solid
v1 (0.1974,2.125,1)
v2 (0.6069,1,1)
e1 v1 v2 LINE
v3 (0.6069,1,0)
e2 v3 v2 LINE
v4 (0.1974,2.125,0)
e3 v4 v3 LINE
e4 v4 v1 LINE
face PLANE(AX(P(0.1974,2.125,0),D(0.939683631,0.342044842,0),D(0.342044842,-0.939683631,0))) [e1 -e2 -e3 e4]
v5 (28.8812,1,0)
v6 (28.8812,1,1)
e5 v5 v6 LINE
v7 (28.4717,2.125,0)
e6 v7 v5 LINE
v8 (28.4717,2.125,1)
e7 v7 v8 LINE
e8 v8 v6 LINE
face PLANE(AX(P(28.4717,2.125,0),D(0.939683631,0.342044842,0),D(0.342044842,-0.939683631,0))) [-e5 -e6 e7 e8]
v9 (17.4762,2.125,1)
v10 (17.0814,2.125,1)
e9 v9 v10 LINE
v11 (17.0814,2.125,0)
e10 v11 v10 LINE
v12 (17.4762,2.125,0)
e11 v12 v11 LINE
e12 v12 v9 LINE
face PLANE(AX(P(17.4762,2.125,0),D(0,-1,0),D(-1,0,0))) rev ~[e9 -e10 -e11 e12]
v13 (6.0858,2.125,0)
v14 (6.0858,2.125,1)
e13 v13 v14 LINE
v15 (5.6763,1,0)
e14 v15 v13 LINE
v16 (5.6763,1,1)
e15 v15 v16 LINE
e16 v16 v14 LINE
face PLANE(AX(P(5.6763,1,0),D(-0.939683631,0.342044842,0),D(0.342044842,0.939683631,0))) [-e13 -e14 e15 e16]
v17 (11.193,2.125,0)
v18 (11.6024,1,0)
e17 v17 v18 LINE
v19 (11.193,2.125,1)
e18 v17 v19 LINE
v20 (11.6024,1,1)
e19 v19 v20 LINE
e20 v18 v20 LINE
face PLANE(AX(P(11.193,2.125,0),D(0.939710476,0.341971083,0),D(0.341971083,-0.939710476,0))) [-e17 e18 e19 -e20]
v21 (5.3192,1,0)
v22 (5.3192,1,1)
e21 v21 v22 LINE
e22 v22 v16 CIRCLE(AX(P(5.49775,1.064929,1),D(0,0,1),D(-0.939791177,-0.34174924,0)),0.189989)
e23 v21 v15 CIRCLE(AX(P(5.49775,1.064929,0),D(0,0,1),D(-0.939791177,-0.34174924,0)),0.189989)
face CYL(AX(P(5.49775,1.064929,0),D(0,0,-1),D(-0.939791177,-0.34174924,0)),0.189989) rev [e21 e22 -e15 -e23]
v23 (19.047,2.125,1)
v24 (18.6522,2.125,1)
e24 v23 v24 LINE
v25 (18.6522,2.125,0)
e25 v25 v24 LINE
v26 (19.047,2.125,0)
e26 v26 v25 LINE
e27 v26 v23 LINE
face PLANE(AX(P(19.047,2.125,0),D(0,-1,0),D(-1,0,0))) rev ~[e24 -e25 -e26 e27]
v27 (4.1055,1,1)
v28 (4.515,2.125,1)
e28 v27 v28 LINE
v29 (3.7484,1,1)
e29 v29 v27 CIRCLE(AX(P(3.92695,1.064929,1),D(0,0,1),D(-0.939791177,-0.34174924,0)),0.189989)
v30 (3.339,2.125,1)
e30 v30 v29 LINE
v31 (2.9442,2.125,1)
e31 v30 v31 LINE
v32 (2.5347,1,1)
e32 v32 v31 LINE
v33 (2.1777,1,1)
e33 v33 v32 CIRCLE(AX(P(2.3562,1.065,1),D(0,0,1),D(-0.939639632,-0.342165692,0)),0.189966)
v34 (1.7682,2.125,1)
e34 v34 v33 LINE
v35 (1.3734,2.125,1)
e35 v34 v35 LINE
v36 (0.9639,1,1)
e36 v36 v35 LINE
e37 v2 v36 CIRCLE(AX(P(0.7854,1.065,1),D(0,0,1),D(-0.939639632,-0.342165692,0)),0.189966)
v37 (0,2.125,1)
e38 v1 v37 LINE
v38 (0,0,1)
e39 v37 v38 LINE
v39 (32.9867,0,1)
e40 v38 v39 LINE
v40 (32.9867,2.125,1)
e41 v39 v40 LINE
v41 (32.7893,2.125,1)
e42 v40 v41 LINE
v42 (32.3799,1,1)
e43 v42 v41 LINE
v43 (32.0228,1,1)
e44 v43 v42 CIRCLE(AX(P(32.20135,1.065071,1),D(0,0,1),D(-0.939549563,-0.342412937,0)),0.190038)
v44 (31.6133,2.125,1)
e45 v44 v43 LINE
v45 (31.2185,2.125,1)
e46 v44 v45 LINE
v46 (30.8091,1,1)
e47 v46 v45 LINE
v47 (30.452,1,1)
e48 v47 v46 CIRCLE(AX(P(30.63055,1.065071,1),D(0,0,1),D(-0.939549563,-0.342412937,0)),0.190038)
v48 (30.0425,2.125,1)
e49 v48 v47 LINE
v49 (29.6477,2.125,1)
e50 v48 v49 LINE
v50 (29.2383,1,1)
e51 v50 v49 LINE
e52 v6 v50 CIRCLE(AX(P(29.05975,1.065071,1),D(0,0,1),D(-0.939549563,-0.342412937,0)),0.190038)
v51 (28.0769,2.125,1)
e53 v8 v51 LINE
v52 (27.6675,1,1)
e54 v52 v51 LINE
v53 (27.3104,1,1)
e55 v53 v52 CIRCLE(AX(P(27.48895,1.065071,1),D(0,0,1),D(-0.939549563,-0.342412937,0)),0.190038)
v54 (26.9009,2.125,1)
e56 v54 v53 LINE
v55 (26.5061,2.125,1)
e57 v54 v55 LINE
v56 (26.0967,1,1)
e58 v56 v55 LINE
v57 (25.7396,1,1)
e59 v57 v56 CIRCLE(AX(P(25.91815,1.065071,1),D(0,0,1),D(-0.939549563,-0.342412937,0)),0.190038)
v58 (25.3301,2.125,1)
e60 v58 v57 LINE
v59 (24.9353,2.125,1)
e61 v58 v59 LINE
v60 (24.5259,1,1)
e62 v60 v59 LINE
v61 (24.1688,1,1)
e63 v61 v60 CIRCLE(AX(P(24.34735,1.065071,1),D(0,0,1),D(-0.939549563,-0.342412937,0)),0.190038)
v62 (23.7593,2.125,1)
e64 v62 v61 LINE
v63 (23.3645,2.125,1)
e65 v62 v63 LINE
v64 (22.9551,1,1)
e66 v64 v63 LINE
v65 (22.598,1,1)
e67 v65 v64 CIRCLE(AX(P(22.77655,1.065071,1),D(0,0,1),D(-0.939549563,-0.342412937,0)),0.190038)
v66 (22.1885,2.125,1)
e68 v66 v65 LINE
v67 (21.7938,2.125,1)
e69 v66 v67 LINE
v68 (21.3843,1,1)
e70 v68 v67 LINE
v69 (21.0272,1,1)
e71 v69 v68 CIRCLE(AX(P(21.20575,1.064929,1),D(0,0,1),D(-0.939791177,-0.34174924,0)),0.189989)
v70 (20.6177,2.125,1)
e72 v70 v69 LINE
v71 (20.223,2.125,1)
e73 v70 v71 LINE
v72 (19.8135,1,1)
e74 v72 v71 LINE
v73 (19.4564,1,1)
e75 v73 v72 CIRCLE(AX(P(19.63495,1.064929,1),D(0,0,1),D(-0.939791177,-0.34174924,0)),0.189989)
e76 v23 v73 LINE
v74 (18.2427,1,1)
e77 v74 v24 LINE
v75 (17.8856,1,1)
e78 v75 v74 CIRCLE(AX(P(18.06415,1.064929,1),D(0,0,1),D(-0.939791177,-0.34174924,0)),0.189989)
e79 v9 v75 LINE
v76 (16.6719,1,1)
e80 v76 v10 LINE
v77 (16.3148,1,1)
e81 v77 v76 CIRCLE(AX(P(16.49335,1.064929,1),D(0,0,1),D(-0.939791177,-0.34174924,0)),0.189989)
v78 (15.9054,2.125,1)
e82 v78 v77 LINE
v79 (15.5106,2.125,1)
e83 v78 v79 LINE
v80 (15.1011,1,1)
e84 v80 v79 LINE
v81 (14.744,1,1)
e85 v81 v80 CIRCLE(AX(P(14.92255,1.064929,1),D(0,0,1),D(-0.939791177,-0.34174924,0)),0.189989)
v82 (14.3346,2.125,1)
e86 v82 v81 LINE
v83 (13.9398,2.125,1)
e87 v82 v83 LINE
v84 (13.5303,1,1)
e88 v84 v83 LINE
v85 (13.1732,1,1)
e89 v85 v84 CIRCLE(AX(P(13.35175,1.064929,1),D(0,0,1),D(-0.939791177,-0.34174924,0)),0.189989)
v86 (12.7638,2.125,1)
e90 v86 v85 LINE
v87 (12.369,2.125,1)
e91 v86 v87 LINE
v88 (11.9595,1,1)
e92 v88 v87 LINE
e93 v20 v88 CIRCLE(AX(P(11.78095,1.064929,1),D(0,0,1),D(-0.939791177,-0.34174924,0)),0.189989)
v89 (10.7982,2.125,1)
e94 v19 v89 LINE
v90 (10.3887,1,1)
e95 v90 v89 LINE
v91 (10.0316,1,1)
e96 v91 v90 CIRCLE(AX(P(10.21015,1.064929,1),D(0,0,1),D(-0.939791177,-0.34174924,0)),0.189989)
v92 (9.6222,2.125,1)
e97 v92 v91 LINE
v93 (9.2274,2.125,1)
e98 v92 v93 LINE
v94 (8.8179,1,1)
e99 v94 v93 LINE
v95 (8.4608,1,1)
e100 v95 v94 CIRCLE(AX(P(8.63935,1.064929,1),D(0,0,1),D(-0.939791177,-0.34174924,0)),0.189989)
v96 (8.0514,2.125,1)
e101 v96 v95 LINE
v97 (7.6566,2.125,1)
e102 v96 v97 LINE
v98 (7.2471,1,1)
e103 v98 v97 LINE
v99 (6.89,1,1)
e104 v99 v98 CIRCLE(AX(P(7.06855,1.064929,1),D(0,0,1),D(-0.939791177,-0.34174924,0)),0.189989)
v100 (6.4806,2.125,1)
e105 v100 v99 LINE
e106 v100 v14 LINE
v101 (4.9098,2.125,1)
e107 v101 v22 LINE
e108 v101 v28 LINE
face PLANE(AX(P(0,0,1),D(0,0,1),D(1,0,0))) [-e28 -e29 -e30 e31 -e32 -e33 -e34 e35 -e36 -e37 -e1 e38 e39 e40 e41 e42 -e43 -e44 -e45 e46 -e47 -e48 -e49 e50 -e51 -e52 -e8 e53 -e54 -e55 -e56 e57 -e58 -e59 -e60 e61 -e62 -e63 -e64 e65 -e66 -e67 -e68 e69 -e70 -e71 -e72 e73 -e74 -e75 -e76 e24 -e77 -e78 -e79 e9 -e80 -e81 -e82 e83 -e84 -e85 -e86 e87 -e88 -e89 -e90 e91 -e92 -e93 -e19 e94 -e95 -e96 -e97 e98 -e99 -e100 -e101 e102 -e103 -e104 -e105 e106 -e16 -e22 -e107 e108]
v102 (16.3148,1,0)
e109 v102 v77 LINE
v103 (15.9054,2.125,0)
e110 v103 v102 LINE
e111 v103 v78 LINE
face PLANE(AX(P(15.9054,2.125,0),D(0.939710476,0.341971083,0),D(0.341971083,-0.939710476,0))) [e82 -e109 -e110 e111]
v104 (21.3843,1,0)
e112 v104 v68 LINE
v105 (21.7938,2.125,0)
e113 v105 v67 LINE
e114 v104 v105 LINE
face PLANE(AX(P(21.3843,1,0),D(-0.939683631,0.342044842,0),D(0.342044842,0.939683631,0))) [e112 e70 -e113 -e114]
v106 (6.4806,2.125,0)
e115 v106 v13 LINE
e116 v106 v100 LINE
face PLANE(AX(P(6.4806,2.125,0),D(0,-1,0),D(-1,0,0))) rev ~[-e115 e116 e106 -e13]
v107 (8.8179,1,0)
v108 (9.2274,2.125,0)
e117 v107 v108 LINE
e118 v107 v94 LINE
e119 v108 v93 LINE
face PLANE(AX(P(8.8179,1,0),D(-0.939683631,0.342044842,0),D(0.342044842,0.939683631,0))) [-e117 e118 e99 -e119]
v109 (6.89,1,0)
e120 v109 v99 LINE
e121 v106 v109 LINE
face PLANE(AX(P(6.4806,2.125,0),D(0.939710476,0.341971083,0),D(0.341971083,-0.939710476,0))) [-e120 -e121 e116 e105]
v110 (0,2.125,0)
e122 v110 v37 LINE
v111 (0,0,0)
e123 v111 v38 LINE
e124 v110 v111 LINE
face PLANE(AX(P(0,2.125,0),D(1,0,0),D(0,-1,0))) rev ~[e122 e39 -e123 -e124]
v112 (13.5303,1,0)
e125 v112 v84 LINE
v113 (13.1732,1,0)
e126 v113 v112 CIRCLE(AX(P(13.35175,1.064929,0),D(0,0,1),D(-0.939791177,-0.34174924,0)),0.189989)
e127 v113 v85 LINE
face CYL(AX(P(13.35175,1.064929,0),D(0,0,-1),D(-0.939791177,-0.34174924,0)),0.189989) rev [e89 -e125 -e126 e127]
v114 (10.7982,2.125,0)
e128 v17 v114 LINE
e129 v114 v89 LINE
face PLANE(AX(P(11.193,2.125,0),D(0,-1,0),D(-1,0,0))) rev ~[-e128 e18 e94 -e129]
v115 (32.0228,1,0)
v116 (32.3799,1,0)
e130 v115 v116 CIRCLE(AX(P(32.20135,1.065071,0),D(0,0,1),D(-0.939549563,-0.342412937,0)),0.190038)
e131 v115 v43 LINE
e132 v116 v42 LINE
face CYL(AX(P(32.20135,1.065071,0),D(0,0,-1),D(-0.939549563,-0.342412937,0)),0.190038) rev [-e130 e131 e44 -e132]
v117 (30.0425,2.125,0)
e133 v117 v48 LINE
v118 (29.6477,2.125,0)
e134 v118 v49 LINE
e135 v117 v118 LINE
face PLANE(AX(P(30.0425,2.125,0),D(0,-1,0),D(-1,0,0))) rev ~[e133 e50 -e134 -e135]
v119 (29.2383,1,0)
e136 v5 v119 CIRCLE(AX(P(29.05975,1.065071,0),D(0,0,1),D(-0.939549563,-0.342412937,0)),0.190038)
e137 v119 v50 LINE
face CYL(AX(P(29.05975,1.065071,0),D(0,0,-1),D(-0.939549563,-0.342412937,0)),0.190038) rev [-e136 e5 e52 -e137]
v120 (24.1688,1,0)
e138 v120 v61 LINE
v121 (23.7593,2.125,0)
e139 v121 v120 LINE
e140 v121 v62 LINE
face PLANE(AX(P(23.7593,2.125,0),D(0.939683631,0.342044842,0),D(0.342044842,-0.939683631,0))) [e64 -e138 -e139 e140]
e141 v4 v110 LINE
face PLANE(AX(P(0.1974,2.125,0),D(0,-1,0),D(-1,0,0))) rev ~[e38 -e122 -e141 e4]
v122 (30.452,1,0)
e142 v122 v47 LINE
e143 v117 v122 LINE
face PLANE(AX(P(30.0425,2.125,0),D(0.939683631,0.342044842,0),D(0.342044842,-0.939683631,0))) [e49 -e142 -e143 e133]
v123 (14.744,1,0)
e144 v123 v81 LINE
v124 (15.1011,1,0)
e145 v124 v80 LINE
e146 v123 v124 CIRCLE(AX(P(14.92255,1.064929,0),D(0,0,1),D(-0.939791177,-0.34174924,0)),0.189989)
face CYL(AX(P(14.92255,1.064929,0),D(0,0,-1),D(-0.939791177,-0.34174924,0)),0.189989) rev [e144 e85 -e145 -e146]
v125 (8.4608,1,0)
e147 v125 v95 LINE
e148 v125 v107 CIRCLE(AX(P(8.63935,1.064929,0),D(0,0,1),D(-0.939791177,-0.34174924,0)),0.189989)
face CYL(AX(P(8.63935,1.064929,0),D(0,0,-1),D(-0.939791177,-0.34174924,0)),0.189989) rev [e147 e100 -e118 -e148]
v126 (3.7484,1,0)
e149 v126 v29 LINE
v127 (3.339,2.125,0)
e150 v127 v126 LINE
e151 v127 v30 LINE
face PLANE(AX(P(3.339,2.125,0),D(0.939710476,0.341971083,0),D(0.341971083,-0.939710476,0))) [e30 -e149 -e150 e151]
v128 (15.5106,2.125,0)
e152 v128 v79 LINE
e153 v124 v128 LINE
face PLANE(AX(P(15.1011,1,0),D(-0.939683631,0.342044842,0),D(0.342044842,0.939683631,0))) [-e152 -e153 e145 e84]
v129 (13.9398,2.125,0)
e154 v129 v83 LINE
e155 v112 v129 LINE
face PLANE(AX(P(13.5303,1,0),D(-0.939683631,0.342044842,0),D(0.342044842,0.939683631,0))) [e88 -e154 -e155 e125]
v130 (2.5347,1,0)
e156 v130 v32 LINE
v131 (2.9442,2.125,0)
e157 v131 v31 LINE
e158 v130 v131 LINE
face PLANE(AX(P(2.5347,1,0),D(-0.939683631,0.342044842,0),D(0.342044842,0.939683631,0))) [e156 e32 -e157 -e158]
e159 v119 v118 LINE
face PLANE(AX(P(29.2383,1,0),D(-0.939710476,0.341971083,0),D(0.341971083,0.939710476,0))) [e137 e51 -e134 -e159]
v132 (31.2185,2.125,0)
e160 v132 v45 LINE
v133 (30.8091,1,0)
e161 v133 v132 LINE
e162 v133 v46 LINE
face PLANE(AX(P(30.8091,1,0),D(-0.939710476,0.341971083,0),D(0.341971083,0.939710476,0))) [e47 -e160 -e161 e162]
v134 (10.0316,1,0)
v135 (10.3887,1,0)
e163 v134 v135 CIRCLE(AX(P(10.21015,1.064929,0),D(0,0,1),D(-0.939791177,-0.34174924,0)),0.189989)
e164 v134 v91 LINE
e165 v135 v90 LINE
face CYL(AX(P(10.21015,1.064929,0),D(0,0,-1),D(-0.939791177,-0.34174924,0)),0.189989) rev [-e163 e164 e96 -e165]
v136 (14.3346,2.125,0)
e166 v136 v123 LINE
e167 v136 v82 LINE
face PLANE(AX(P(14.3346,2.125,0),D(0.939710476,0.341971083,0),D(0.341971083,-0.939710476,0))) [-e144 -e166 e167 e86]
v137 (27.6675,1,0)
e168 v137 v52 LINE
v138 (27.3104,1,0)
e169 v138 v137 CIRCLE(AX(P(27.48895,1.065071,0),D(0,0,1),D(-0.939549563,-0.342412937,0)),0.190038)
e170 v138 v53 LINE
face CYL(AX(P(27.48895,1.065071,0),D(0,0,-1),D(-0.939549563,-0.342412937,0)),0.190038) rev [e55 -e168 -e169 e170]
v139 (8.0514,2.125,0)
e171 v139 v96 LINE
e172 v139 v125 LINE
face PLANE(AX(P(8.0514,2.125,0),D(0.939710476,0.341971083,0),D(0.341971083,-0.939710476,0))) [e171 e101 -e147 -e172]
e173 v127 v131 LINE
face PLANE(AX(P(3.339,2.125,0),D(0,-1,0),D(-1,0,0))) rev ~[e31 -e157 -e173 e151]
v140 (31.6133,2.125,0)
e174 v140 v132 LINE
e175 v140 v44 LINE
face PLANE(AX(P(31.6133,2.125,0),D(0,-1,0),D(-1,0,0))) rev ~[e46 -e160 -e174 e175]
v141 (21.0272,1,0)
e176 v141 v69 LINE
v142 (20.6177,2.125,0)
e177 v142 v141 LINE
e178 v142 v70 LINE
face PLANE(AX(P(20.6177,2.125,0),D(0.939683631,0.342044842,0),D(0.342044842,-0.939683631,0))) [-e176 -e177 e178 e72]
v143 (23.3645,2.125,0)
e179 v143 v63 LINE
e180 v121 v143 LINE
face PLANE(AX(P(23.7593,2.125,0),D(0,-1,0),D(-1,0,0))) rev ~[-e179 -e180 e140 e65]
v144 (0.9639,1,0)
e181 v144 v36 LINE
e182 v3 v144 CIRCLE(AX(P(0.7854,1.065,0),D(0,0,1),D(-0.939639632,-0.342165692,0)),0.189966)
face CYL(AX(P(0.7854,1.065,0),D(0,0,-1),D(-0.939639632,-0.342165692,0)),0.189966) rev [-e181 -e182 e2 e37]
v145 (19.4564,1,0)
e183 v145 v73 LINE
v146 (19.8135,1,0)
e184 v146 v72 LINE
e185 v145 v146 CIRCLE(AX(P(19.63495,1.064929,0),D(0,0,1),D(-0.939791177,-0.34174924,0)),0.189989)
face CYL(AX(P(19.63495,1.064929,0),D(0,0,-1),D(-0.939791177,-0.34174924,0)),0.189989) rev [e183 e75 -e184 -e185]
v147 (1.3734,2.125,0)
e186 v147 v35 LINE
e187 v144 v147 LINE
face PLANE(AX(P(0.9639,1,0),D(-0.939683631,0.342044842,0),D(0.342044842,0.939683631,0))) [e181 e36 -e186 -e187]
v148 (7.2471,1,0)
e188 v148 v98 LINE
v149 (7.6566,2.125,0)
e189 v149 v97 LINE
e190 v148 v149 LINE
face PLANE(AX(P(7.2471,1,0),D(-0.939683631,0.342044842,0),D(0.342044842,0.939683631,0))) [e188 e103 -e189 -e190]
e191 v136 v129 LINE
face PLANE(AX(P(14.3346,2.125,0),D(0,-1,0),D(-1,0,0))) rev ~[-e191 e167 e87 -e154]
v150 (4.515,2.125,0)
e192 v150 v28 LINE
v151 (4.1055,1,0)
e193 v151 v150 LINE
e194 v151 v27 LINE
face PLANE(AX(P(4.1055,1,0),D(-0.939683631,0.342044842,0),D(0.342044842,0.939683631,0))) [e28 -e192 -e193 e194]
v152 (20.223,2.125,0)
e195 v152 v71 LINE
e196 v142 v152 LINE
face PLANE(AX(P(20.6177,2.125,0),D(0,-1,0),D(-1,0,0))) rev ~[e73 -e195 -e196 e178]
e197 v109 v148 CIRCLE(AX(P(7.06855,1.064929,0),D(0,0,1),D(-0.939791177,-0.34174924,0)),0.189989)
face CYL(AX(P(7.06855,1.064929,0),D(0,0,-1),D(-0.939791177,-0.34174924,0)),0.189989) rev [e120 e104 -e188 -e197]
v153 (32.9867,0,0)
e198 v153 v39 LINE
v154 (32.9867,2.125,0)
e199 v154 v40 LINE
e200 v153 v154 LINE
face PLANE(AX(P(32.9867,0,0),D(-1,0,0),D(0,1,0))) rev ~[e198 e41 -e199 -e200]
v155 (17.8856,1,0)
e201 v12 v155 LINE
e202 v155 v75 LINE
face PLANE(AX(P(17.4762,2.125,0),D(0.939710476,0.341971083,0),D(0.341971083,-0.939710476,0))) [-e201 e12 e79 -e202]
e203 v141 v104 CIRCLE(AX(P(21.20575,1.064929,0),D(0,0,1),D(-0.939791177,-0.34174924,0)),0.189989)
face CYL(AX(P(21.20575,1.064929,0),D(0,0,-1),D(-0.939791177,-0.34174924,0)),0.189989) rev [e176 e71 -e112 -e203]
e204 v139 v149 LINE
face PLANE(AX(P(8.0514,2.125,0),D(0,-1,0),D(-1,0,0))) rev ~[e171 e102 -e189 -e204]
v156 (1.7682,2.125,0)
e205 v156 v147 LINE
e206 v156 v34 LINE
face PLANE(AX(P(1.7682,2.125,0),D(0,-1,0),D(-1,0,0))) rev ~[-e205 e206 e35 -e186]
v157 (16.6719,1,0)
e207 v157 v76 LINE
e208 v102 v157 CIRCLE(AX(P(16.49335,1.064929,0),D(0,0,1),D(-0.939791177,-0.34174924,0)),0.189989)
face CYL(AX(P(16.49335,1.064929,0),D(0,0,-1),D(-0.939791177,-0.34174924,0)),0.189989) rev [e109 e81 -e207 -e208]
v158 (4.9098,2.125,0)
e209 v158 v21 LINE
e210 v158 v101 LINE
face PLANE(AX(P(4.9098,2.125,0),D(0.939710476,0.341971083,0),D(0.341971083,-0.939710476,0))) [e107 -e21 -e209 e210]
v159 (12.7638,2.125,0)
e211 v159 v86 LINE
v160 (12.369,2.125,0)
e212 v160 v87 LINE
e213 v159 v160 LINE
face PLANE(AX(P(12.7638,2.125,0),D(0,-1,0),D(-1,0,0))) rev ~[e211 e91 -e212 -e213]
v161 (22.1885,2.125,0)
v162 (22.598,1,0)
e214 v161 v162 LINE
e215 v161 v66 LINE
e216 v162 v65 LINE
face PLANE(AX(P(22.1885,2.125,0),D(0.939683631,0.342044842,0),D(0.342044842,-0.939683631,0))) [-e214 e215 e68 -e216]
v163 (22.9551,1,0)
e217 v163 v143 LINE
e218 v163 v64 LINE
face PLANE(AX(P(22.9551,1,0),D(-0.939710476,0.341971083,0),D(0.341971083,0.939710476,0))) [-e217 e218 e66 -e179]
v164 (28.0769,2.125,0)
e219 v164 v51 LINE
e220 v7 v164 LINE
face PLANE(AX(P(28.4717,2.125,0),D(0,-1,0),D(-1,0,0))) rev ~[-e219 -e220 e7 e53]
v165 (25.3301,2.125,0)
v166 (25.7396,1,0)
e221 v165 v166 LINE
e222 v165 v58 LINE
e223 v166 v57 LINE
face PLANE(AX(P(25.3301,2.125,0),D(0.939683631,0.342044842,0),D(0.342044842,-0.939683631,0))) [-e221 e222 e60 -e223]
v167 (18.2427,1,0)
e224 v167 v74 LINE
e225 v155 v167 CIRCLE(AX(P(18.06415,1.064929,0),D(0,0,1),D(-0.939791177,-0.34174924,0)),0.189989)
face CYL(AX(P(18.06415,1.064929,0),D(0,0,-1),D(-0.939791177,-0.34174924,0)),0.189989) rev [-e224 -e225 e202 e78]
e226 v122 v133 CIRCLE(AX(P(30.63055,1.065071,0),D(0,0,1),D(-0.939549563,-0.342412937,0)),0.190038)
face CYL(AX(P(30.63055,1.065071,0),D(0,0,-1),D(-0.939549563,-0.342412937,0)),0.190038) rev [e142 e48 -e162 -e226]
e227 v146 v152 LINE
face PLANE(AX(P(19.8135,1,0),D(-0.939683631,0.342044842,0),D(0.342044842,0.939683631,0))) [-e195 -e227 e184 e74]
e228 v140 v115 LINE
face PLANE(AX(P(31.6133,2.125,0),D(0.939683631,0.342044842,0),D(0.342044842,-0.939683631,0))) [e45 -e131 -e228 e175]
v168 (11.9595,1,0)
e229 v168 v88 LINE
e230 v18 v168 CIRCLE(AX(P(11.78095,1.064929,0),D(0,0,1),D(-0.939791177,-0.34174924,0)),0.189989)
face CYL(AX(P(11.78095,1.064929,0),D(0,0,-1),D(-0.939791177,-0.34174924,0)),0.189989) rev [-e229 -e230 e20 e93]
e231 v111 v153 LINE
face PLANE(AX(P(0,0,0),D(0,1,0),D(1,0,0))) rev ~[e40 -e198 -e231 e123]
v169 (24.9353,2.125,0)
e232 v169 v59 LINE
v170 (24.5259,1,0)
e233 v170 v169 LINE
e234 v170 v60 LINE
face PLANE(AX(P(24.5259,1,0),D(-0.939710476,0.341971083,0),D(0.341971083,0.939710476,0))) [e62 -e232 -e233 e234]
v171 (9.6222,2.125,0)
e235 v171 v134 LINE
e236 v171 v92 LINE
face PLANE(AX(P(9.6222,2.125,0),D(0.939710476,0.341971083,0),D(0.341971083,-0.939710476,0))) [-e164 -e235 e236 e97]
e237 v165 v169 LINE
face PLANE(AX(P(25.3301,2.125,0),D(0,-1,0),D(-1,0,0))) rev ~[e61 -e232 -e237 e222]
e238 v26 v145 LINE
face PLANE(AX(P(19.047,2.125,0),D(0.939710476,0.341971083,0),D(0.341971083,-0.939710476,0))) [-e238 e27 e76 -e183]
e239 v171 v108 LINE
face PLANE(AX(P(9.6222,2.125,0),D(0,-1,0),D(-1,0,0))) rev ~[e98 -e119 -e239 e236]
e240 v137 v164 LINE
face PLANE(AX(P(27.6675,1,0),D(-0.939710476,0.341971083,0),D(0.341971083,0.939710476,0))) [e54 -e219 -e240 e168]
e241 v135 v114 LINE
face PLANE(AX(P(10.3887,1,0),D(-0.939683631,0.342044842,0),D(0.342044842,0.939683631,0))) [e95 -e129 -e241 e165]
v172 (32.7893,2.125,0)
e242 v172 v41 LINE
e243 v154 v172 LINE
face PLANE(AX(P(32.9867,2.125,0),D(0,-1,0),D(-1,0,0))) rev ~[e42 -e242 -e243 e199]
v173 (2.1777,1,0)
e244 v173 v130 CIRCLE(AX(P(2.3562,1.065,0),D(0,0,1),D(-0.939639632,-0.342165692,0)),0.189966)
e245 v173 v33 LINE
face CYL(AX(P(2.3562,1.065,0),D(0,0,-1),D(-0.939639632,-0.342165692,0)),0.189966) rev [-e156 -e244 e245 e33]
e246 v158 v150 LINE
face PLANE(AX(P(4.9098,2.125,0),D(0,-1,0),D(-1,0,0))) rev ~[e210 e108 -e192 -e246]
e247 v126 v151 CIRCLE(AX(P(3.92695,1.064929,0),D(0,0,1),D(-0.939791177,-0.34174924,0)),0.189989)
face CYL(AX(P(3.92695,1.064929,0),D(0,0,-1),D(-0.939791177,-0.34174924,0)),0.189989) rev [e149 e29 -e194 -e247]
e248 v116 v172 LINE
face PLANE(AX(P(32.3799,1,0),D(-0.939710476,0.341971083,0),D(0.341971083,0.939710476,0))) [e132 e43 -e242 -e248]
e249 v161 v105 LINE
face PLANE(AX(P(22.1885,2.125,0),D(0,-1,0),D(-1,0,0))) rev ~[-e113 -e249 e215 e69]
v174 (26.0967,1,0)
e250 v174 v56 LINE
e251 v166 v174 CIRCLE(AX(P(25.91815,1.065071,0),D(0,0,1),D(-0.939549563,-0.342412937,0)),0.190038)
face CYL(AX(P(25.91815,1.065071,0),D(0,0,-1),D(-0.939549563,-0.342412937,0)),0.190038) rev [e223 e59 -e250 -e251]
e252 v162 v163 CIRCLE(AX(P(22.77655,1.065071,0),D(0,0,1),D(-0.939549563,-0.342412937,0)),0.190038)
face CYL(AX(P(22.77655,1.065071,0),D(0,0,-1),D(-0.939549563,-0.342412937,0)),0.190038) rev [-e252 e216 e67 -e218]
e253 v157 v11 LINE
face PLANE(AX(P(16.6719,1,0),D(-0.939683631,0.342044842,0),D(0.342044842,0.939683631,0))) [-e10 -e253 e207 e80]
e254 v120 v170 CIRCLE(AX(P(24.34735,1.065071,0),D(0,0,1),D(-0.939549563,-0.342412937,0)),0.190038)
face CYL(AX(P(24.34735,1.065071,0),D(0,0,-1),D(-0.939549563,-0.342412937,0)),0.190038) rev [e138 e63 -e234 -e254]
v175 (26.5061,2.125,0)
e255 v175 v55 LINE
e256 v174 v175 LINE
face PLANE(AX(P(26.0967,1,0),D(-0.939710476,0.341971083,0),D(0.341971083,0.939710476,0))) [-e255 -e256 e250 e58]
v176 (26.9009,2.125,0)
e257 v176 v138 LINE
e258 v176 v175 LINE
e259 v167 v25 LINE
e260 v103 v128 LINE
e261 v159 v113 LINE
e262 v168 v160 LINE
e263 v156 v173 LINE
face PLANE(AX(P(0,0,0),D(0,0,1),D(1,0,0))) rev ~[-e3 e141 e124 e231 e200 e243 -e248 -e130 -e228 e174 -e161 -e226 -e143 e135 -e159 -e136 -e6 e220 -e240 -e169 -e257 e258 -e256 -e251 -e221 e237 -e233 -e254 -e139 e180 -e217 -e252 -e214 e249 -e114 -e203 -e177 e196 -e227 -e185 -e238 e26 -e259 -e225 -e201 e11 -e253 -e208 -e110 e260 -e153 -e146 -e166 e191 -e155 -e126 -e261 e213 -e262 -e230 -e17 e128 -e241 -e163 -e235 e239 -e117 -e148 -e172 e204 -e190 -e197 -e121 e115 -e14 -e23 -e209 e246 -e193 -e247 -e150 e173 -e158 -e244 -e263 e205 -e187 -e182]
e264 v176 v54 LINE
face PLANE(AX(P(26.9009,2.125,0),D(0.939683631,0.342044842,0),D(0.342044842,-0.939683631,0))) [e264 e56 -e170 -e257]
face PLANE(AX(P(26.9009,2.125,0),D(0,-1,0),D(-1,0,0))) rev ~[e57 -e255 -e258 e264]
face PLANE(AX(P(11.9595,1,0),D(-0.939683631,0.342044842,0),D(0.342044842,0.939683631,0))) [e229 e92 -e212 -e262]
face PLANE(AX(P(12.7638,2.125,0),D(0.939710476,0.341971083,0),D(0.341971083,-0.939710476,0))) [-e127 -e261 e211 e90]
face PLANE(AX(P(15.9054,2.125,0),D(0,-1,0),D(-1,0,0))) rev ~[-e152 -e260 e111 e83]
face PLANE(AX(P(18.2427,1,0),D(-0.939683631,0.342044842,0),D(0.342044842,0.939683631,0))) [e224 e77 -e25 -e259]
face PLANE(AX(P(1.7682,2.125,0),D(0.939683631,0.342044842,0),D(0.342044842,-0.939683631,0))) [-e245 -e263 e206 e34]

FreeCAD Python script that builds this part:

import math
import FreeCAD as App
import Part
import Sketcher
Q = App.Units.Quantity

doc = App.newDocument("Part")
body = doc.addObject("PartDesign::Body", "Body")

sketch1 = body.newObject("Sketcher::SketchObject", "Sketch")
sketch1.AttachmentSupport = (doc.getObject("XY_Plane"), [""])
sketch1.MapMode = "FlatFace"
sketch1.addGeometry([
    Part.LineSegment(App.Vector(0, 2.125, 0), App.Vector(0, 0, 0)),
    Part.LineSegment(App.Vector(0, 0, 0), App.Vector(32.9867, 0, 0)),
    Part.LineSegment(App.Vector(32.9867, 0, 0), App.Vector(32.9867, 2.125, 0)),
    Part.LineSegment(App.Vector(32.9867, 2.125, 0), App.Vector(32.7893, 2.125, 0)),
    Part.LineSegment(App.Vector(32.7893, 2.125, 0), App.Vector(32.3799, 1, 0)),
    Part.ArcOfCircle(Part.Circle(App.Vector(32.2013, 1.065, 0), App.Vector(0, 0, 1), 0.189966), math.radians(-159.991125), math.radians(-19.99856)),
    Part.LineSegment(App.Vector(32.0228, 1, 0), App.Vector(31.6133, 2.125, 0)),
    Part.LineSegment(App.Vector(31.6133, 2.125, 0), App.Vector(31.2185, 2.125, 0)),
    Part.LineSegment(App.Vector(31.2185, 2.125, 0), App.Vector(30.8091, 1, 0)),
    Part.ArcOfCircle(Part.Circle(App.Vector(30.6305, 1.065, 0), App.Vector(0, 0, 1), 0.189966), math.radians(-159.991125), math.radians(-19.99856)),
    Part.LineSegment(App.Vector(30.452, 1, 0), App.Vector(30.0425, 2.125, 0)),
    Part.LineSegment(App.Vector(30.0425, 2.125, 0), App.Vector(29.6477, 2.125, 0)),
    Part.LineSegment(App.Vector(29.6477, 2.125, 0), App.Vector(29.2383, 1, 0)),
    Part.ArcOfCircle(Part.Circle(App.Vector(29.0597, 1.065, 0), App.Vector(0, 0, 1), 0.189966), math.radians(-159.991125), math.radians(-19.99856)),
    Part.LineSegment(App.Vector(28.8812, 1, 0), App.Vector(28.4717, 2.125, 0)),
    Part.LineSegment(App.Vector(28.4717, 2.125, 0), App.Vector(28.0769, 2.125, 0)),
    Part.LineSegment(App.Vector(28.0769, 2.125, 0), App.Vector(27.6675, 1, 0)),
    Part.ArcOfCircle(Part.Circle(App.Vector(27.4889, 1.065, 0), App.Vector(0, 0, 1), 0.189966), math.radians(-159.991125), math.radians(-19.99856)),
    Part.LineSegment(App.Vector(27.3104, 1, 0), App.Vector(26.9009, 2.125, 0)),
    Part.LineSegment(App.Vector(26.9009, 2.125, 0), App.Vector(26.5061, 2.125, 0)),
    Part.LineSegment(App.Vector(26.5061, 2.125, 0), App.Vector(26.0967, 1, 0)),
    Part.ArcOfCircle(Part.Circle(App.Vector(25.9181, 1.065, 0), App.Vector(0, 0, 1), 0.189966), math.radians(-159.991125), math.radians(-19.99856)),
    Part.LineSegment(App.Vector(25.7396, 1, 0), App.Vector(25.3301, 2.125, 0)),
    Part.LineSegment(App.Vector(25.3301, 2.125, 0), App.Vector(24.9353, 2.125, 0)),
    Part.LineSegment(App.Vector(24.9353, 2.125, 0), App.Vector(24.5259, 1, 0)),
    Part.ArcOfCircle(Part.Circle(App.Vector(24.3473, 1.065, 0), App.Vector(0, 0, 1), 0.189966), math.radians(-159.991125), math.radians(-19.99856)),
    Part.LineSegment(App.Vector(24.1688, 1, 0), App.Vector(23.7593, 2.125, 0)),
    Part.LineSegment(App.Vector(23.7593, 2.125, 0), App.Vector(23.3645, 2.125, 0)),
    Part.LineSegment(App.Vector(23.3645, 2.125, 0), App.Vector(22.9551, 1, 0)),
    Part.ArcOfCircle(Part.Circle(App.Vector(22.7765, 1.065, 0), App.Vector(0, 0, 1), 0.189966), math.radians(-159.991125), math.radians(-19.99856)),
    Part.LineSegment(App.Vector(22.598, 1, 0), App.Vector(22.1885, 2.125, 0)),
    Part.LineSegment(App.Vector(22.1885, 2.125, 0), App.Vector(21.7938, 2.125, 0)),
    Part.LineSegment(App.Vector(21.7938, 2.125, 0), App.Vector(21.3843, 1, 0)),
    Part.ArcOfCircle(Part.Circle(App.Vector(21.2058, 1.065, 0), App.Vector(0, 0, 1), 0.19006), math.radians(-160.00144), math.radians(-20.008875)),
    Part.LineSegment(App.Vector(21.0272, 1, 0), App.Vector(20.6177, 2.125, 0)),
    Part.LineSegment(App.Vector(20.6177, 2.125, 0), App.Vector(20.223, 2.125, 0)),
    Part.LineSegment(App.Vector(20.223, 2.125, 0), App.Vector(19.8135, 1, 0)),
    Part.ArcOfCircle(Part.Circle(App.Vector(19.635, 1.065, 0), App.Vector(0, 0, 1), 0.19006), math.radians(-160.00144), math.radians(-20.008875)),
    Part.LineSegment(App.Vector(19.4564, 1, 0), App.Vector(19.047, 2.125, 0)),
    Part.LineSegment(App.Vector(19.047, 2.125, 0), App.Vector(18.6522, 2.125, 0)),
    Part.LineSegment(App.Vector(18.6522, 2.125, 0), App.Vector(18.2427, 1, 0)),
    Part.ArcOfCircle(Part.Circle(App.Vector(18.0642, 1.065, 0), App.Vector(0, 0, 1), 0.19006), math.radians(-160.00144), math.radians(-20.008875)),
    Part.LineSegment(App.Vector(17.8856, 1, 0), App.Vector(17.4762, 2.125, 0)),
    Part.LineSegment(App.Vector(17.4762, 2.125, 0), App.Vector(17.0814, 2.125, 0)),
    Part.LineSegment(App.Vector(17.0814, 2.125, 0), App.Vector(16.6719, 1, 0)),
    Part.ArcOfCircle(Part.Circle(App.Vector(16.4934, 1.065, 0), App.Vector(0, 0, 1), 0.19006), math.radians(-160.00144), math.radians(-20.008875)),
    Part.LineSegment(App.Vector(16.3148, 1, 0), App.Vector(15.9054, 2.125, 0)),
    Part.LineSegment(App.Vector(15.9054, 2.125, 0), App.Vector(15.5106, 2.125, 0)),
    Part.LineSegment(App.Vector(15.5106, 2.125, 0), App.Vector(15.1011, 1, 0)),
    Part.ArcOfCircle(Part.Circle(App.Vector(14.9226, 1.065, 0), App.Vector(0, 0, 1), 0.19006), math.radians(-160.00144), math.radians(-20.008875)),
    Part.LineSegment(App.Vector(14.744, 1, 0), App.Vector(14.3346, 2.125, 0)),
    Part.LineSegment(App.Vector(14.3346, 2.125, 0), App.Vector(13.9398, 2.125, 0)),
    Part.LineSegment(App.Vector(13.9398, 2.125, 0), App.Vector(13.5303, 1, 0)),
    Part.ArcOfCircle(Part.Circle(App.Vector(13.3518, 1.065, 0), App.Vector(0, 0, 1), 0.19006), math.radians(-160.00144), math.radians(-20.008875)),
    Part.LineSegment(App.Vector(13.1732, 1, 0), App.Vector(12.7638, 2.125, 0)),
    Part.LineSegment(App.Vector(12.7638, 2.125, 0), App.Vector(12.369, 2.125, 0)),
    Part.LineSegment(App.Vector(12.369, 2.125, 0), App.Vector(11.9595, 1, 0)),
    Part.ArcOfCircle(Part.Circle(App.Vector(11.781, 1.065, 0), App.Vector(0, 0, 1), 0.19006), math.radians(-160.00144), math.radians(-20.008875)),
    Part.LineSegment(App.Vector(11.6024, 1, 0), App.Vector(11.193, 2.125, 0)),
    Part.LineSegment(App.Vector(11.193, 2.125, 0), App.Vector(10.7982, 2.125, 0)),
    Part.LineSegment(App.Vector(10.7982, 2.125, 0), App.Vector(10.3887, 1, 0)),
    Part.ArcOfCircle(Part.Circle(App.Vector(10.2102, 1.065, 0), App.Vector(0, 0, 1), 0.19006), math.radians(-160.00144), math.radians(-20.008875)),
    Part.LineSegment(App.Vector(10.0316, 1, 0), App.Vector(9.6222, 2.125, 0)),
    Part.LineSegment(App.Vector(9.6222, 2.125, 0), App.Vector(9.2274, 2.125, 0)),
    Part.LineSegment(App.Vector(9.2274, 2.125, 0), App.Vector(8.8179, 1, 0)),
    Part.ArcOfCircle(Part.Circle(App.Vector(8.6394, 1.065, 0), App.Vector(0, 0, 1), 0.19006), math.radians(-160.00144), math.radians(-20.008875)),
    Part.LineSegment(App.Vector(8.4608, 1, 0), App.Vector(8.0514, 2.125, 0)),
    Part.LineSegment(App.Vector(8.0514, 2.125, 0), App.Vector(7.6566, 2.125, 0)),
    Part.LineSegment(App.Vector(7.6566, 2.125, 0), App.Vector(7.2471, 1, 0)),
    Part.ArcOfCircle(Part.Circle(App.Vector(7.0686, 1.065, 0), App.Vector(0, 0, 1), 0.19006), math.radians(-160.00144), math.radians(-20.008875)),
    Part.LineSegment(App.Vector(6.89, 1, 0), App.Vector(6.4806, 2.125, 0)),
    Part.LineSegment(App.Vector(6.4806, 2.125, 0), App.Vector(6.0858, 2.125, 0)),
    Part.LineSegment(App.Vector(6.0858, 2.125, 0), App.Vector(5.6763, 1, 0)),
    Part.ArcOfCircle(Part.Circle(App.Vector(5.4978, 1.065, 0), App.Vector(0, 0, 1), 0.19006), math.radians(-160.00144), math.radians(-20.008875)),
    Part.LineSegment(App.Vector(5.3192, 1, 0), App.Vector(4.9098, 2.125, 0)),
    Part.LineSegment(App.Vector(4.9098, 2.125, 0), App.Vector(4.515, 2.125, 0)),
    Part.LineSegment(App.Vector(4.515, 2.125, 0), App.Vector(4.1055, 1, 0)),
    Part.ArcOfCircle(Part.Circle(App.Vector(3.927, 1.065, 0), App.Vector(0, 0, 1), 0.19006), math.radians(-160.00144), math.radians(-20.008875)),
    Part.LineSegment(App.Vector(3.7484, 1, 0), App.Vector(3.339, 2.125, 0)),
    Part.LineSegment(App.Vector(3.339, 2.125, 0), App.Vector(2.9442, 2.125, 0)),
    Part.LineSegment(App.Vector(2.9442, 2.125, 0), App.Vector(2.5347, 1, 0)),
    Part.ArcOfCircle(Part.Circle(App.Vector(2.3562, 1.065, 0), App.Vector(0, 0, 1), 0.189966), math.radians(-159.991125), math.radians(-20.008875)),
    Part.LineSegment(App.Vector(2.1777, 1, 0), App.Vector(1.7682, 2.125, 0)),
    Part.LineSegment(App.Vector(1.7682, 2.125, 0), App.Vector(1.3734, 2.125, 0)),
    Part.LineSegment(App.Vector(1.3734, 2.125, 0), App.Vector(0.9639, 1, 0)),
    Part.ArcOfCircle(Part.Circle(App.Vector(0.7854, 1.065, 0), App.Vector(0, 0, 1), 0.189966), math.radians(-159.991125), math.radians(-20.008875)),
    Part.LineSegment(App.Vector(0.6069, 1, 0), App.Vector(0.1974, 2.125, 0)),
    Part.LineSegment(App.Vector(0.1974, 2.125, 0), App.Vector(0, 2.125, 0)),
], False)
sketch1.addConstraint([
    Sketcher.Constraint("Coincident", 0, 2, 1, 1),
    Sketcher.Constraint("Coincident", 1, 2, 2, 1),
    Sketcher.Constraint("Coincident", 2, 2, 3, 1),
    Sketcher.Constraint("Coincident", 3, 2, 4, 1),
    Sketcher.Constraint("Coincident", 4, 2, 5, 2),
    Sketcher.Constraint("Coincident", 5, 1, 6, 1),
    Sketcher.Constraint("Coincident", 6, 2, 7, 1),
    Sketcher.Constraint("Coincident", 7, 2, 8, 1),
    Sketcher.Constraint("Coincident", 8, 2, 9, 2),
    Sketcher.Constraint("Coincident", 9, 1, 10, 1),
    Sketcher.Constraint("Coincident", 10, 2, 11, 1),
    Sketcher.Constraint("Coincident", 11, 2, 12, 1),
    Sketcher.Constraint("Coincident", 12, 2, 13, 2),
    Sketcher.Constraint("Coincident", 13, 1, 14, 1),
    Sketcher.Constraint("Coincident", 14, 2, 15, 1),
    Sketcher.Constraint("Coincident", 15, 2, 16, 1),
    Sketcher.Constraint("Coincident", 16, 2, 17, 2),
    Sketcher.Constraint("Coincident", 17, 1, 18, 1),
    Sketcher.Constraint("Coincident", 18, 2, 19, 1),
    Sketcher.Constraint("Coincident", 19, 2, 20, 1),
    Sketcher.Constraint("Coincident", 20, 2, 21, 2),
    Sketcher.Constraint("Coincident", 21, 1, 22, 1),
    Sketcher.Constraint("Coincident", 22, 2, 23, 1),
    Sketcher.Constraint("Coincident", 23, 2, 24, 1),
    Sketcher.Constraint("Coincident", 24, 2, 25, 2),
    Sketcher.Constraint("Coincident", 25, 1, 26, 1),
    Sketcher.Constraint("Coincident", 26, 2, 27, 1),
    Sketcher.Constraint("Coincident", 27, 2, 28, 1),
    Sketcher.Constraint("Coincident", 28, 2, 29, 2),
    Sketcher.Constraint("Coincident", 29, 1, 30, 1),
    Sketcher.Constraint("Coincident", 30, 2, 31, 1),
    Sketcher.Constraint("Coincident", 31, 2, 32, 1),
    Sketcher.Constraint("Coincident", 32, 2, 33, 2),
    Sketcher.Constraint("Coincident", 33, 1, 34, 1),
    Sketcher.Constraint("Coincident", 34, 2, 35, 1),
    Sketcher.Constraint("Coincident", 35, 2, 36, 1),
    Sketcher.Constraint("Coincident", 36, 2, 37, 2),
    Sketcher.Constraint("Coincident", 37, 1, 38, 1),
    Sketcher.Constraint("Coincident", 38, 2, 39, 1),
    Sketcher.Constraint("Coincident", 39, 2, 40, 1),
    Sketcher.Constraint("Coincident", 40, 2, 41, 2),
    Sketcher.Constraint("Coincident", 41, 1, 42, 1),
    Sketcher.Constraint("Coincident", 42, 2, 43, 1),
    Sketcher.Constraint("Coincident", 43, 2, 44, 1),
    Sketcher.Constraint("Coincident", 44, 2, 45, 2),
    Sketcher.Constraint("Coincident", 45, 1, 46, 1),
    Sketcher.Constraint("Coincident", 46, 2, 47, 1),
    Sketcher.Constraint("Coincident", 47, 2, 48, 1),
    Sketcher.Constraint("Coincident", 48, 2, 49, 2),
    Sketcher.Constraint("Coincident", 49, 1, 50, 1),
    Sketcher.Constraint("Coincident", 50, 2, 51, 1),
    Sketcher.Constraint("Coincident", 51, 2, 52, 1),
    Sketcher.Constraint("Coincident", 52, 2, 53, 2),
    Sketcher.Constraint("Coincident", 53, 1, 54, 1),
    Sketcher.Constraint("Coincident", 54, 2, 55, 1),
    Sketcher.Constraint("Coincident", 55, 2, 56, 1),
    Sketcher.Constraint("Coincident", 56, 2, 57, 2),
    Sketcher.Constraint("Coincident", 57, 1, 58, 1),
    Sketcher.Constraint("Coincident", 58, 2, 59, 1),
    Sketcher.Constraint("Coincident", 59, 2, 60, 1),
    Sketcher.Constraint("Coincident", 60, 2, 61, 2),
    Sketcher.Constraint("Coincident", 61, 1, 62, 1),
    Sketcher.Constraint("Coincident", 62, 2, 63, 1),
    Sketcher.Constraint("Coincident", 63, 2, 64, 1),
    Sketcher.Constraint("Coincident", 64, 2, 65, 2),
    Sketcher.Constraint("Coincident", 65, 1, 66, 1),
    Sketcher.Constraint("Coincident", 66, 2, 67, 1),
    Sketcher.Constraint("Coincident", 67, 2, 68, 1),
    Sketcher.Constraint("Coincident", 68, 2, 69, 2),
    Sketcher.Constraint("Coincident", 69, 1, 70, 1),
    Sketcher.Constraint("Coincident", 70, 2, 71, 1),
    Sketcher.Constraint("Coincident", 71, 2, 72, 1),
    Sketcher.Constraint("Coincident", 72, 2, 73, 2),
    Sketcher.Constraint("Coincident", 73, 1, 74, 1),
    Sketcher.Constraint("Coincident", 74, 2, 75, 1),
    Sketcher.Constraint("Coincident", 75, 2, 76, 1),
    Sketcher.Constraint("Coincident", 76, 2, 77, 2),
    Sketcher.Constraint("Coincident", 77, 1, 78, 1),
    Sketcher.Constraint("Coincident", 78, 2, 79, 1),
    Sketcher.Constraint("Coincident", 79, 2, 80, 1),
    Sketcher.Constraint("Coincident", 80, 2, 81, 2),
    Sketcher.Constraint("Coincident", 81, 1, 82, 1),
    Sketcher.Constraint("Coincident", 82, 2, 83, 1),
    Sketcher.Constraint("Coincident", 83, 2, 84, 1),
    Sketcher.Constraint("Coincident", 84, 2, 85, 2),
    Sketcher.Constraint("Coincident", 85, 1, 86, 1),
    Sketcher.Constraint("Coincident", 86, 2, 87, 1),
    Sketcher.Constraint("Coincident", 87, 2, 0, 1),
    Sketcher.Constraint("Vertical", 0),
    Sketcher.Constraint("Horizontal", 1),
    Sketcher.Constraint("Vertical", 2),
    Sketcher.Constraint("Horizontal", 3),
    Sketcher.Constraint("Horizontal", 7),
    Sketcher.Constraint("Horizontal", 11),
    Sketcher.Constraint("Horizontal", 15),
    Sketcher.Constraint("Horizontal", 19),
    Sketcher.Constraint("Horizontal", 23),
    Sketcher.Constraint("Horizontal", 27),
    Sketcher.Constraint("Horizontal", 31),
    Sketcher.Constraint("Horizontal", 35),
    Sketcher.Constraint("Horizontal", 39),
    Sketcher.Constraint("Horizontal", 43),
    Sketcher.Constraint("Horizontal", 47),
    Sketcher.Constraint("Horizontal", 51),
    Sketcher.Constraint("Horizontal", 55),
    Sketcher.Constraint("Horizontal", 59),
    Sketcher.Constraint("Horizontal", 63),
    Sketcher.Constraint("Horizontal", 67),
    Sketcher.Constraint("Horizontal", 71),
    Sketcher.Constraint("Horizontal", 75),
    Sketcher.Constraint("Horizontal", 79),
    Sketcher.Constraint("Horizontal", 83),
    Sketcher.Constraint("Horizontal", 87),
    Sketcher.Constraint("Coincident", 0, 2, -1, 1),
    Sketcher.Constraint("Radius", 5, Q("0.19 mm")),
    Sketcher.Constraint("Radius", 9, Q("0.19 mm")),
    Sketcher.Constraint("Radius", 13, Q("0.19 mm")),
    Sketcher.Constraint("Radius", 17, Q("0.19 mm")),
    Sketcher.Constraint("Radius", 21, Q("0.19 mm")),
    Sketcher.Constraint("Radius", 25, Q("0.19 mm")),
    Sketcher.Constraint("Radius", 29, Q("0.19 mm")),
    Sketcher.Constraint("Radius", 33, Q("0.19 mm")),
    Sketcher.Constraint("Radius", 37, Q("0.19 mm")),
    Sketcher.Constraint("Radius", 41, Q("0.19 mm")),
    Sketcher.Constraint("Radius", 45, Q("0.19 mm")),
    Sketcher.Constraint("Radius", 49, Q("0.19 mm")),
    Sketcher.Constraint("Radius", 53, Q("0.19 mm")),
    Sketcher.Constraint("Radius", 57, Q("0.19 mm")),
    Sketcher.Constraint("Radius", 61, Q("0.19 mm")),
    Sketcher.Constraint("Radius", 65, Q("0.19 mm")),
    Sketcher.Constraint("Radius", 69, Q("0.19 mm")),
    Sketcher.Constraint("Radius", 73, Q("0.19 mm")),
    Sketcher.Constraint("Radius", 77, Q("0.19 mm")),
    Sketcher.Constraint("Radius", 81, Q("0.19 mm")),
    Sketcher.Constraint("Radius", 85, Q("0.19 mm")),
    Sketcher.Constraint("DistanceY", 0, 2, 0, 1, Q("2.125 mm")),
    Sketcher.Constraint("DistanceY", 2, 1, 2, 2, Q("2.125 mm")),
    Sketcher.Constraint("DistanceX", 1, 1, 1, 2, Q("32.9867 mm")),
    Sketcher.Constraint("DistanceY", -1, 1, 6, 2, Q("2.125 mm")),
    Sketcher.Constraint("DistanceY", -1, 1, 10, 2, Q("2.125 mm")),
    Sketcher.Constraint("DistanceY", -1, 1, 14, 2, Q("2.125 mm")),
    Sketcher.Constraint("DistanceY", -1, 1, 18, 2, Q("2.125 mm")),
    Sketcher.Constraint("DistanceY", -1, 1, 22, 2, Q("2.125 mm")),
    Sketcher.Constraint("DistanceY", -1, 1, 26, 2, Q("2.125 mm")),
    Sketcher.Constraint("DistanceY", -1, 1, 30, 2, Q("2.125 mm")),
    Sketcher.Constraint("DistanceY", -1, 1, 34, 2, Q("2.125 mm")),
    Sketcher.Constraint("DistanceY", -1, 1, 38, 2, Q("2.125 mm")),
    Sketcher.Constraint("DistanceY", -1, 1, 42, 2, Q("2.125 mm")),
    Sketcher.Constraint("DistanceY", -1, 1, 46, 2, Q("2.125 mm")),
    Sketcher.Constraint("DistanceY", -1, 1, 50, 2, Q("2.125 mm")),
    Sketcher.Constraint("DistanceY", -1, 1, 54, 2, Q("2.125 mm")),
    Sketcher.Constraint("DistanceY", -1, 1, 58, 2, Q("2.125 mm")),
    Sketcher.Constraint("DistanceY", -1, 1, 62, 2, Q("2.125 mm")),
    Sketcher.Constraint("DistanceY", -1, 1, 66, 2, Q("2.125 mm")),
    Sketcher.Constraint("DistanceY", -1, 1, 70, 2, Q("2.125 mm")),
    Sketcher.Constraint("DistanceY", -1, 1, 74, 2, Q("2.125 mm")),
    Sketcher.Constraint("DistanceY", -1, 1, 78, 2, Q("2.125 mm")),
    Sketcher.Constraint("DistanceY", -1, 1, 82, 2, Q("2.125 mm")),
    Sketcher.Constraint("DistanceY", -1, 1, 4, 2, Q("1 mm")),
    Sketcher.Constraint("DistanceY", -1, 1, 5, 1, Q("1 mm")),
    Sketcher.Constraint("DistanceY", -1, 1, 8, 2, Q("1 mm")),
    Sketcher.Constraint("DistanceY", -1, 1, 9, 1, Q("1 mm")),
    Sketcher.Constraint("DistanceY", -1, 1, 12, 2, Q("1 mm")),
    Sketcher.Constraint("DistanceY", -1, 1, 13, 1, Q("1 mm")),
    Sketcher.Constraint("DistanceY", -1, 1, 16, 2, Q("1 mm")),
    Sketcher.Constraint("DistanceY", -1, 1, 17, 1, Q("1 mm")),
    Sketcher.Constraint("DistanceY", -1, 1, 20, 2, Q("1 mm")),
    Sketcher.Constraint("DistanceY", -1, 1, 21, 1, Q("1 mm")),
    Sketcher.Constraint("DistanceY", -1, 1, 24, 2, Q("1 mm")),
    Sketcher.Constraint("DistanceY", -1, 1, 25, 1, Q("1 mm")),
    Sketcher.Constraint("DistanceY", -1, 1, 28, 2, Q("1 mm")),
    Sketcher.Constraint("DistanceY", -1, 1, 29, 1, Q("1 mm")),
    Sketcher.Constraint("DistanceY", -1, 1, 32, 2, Q("1 mm")),
    Sketcher.Constraint("DistanceY", -1, 1, 33, 1, Q("1 mm")),
    Sketcher.Constraint("DistanceY", -1, 1, 36, 2, Q("1 mm")),
    Sketcher.Constraint("DistanceY", -1, 1, 37, 1, Q("1 mm")),
    Sketcher.Constraint("DistanceY", -1, 1, 40, 2, Q("1 mm")),
    Sketcher.Constraint("DistanceY", -1, 1, 41, 1, Q("1 mm")),
    Sketcher.Constraint("DistanceY", -1, 1, 44, 2, Q("1 mm")),
    Sketcher.Constraint("DistanceY", -1, 1, 45, 1, Q("1 mm")),
    Sketcher.Constraint("DistanceY", -1, 1, 48, 2, Q("1 mm")),
    Sketcher.Constraint("DistanceY", -1, 1, 49, 1, Q("1 mm")),
    Sketcher.Constraint("DistanceY", -1, 1, 52, 2, Q("1 mm")),
    Sketcher.Constraint("DistanceY", -1, 1, 53, 1, Q("1 mm")),
    Sketcher.Constraint("DistanceY", -1, 1, 56, 2, Q("1 mm")),
    Sketcher.Constraint("DistanceY", -1, 1, 57, 1, Q("1 mm")),
    Sketcher.Constraint("DistanceY", -1, 1, 60, 2, Q("1 mm")),
    Sketcher.Constraint("DistanceY", -1, 1, 61, 1, Q("1 mm")),
    Sketcher.Constraint("DistanceY", -1, 1, 64, 2, Q("1 mm")),
    Sketcher.Constraint("DistanceY", -1, 1, 65, 1, Q("1 mm")),
    Sketcher.Constraint("DistanceY", -1, 1, 68, 2, Q("1 mm")),
    Sketcher.Constraint("DistanceY", -1, 1, 69, 1, Q("1 mm")),
    Sketcher.Constraint("DistanceY", -1, 1, 72, 2, Q("1 mm")),
    Sketcher.Constraint("DistanceY", -1, 1, 73, 1, Q("1 mm")),
    Sketcher.Constraint("DistanceY", -1, 1, 76, 2, Q("1 mm")),
    Sketcher.Constraint("DistanceY", -1, 1, 77, 1, Q("1 mm")),
    Sketcher.Constraint("DistanceY", -1, 1, 80, 2, Q("1 mm")),
    Sketcher.Constraint("DistanceY", -1, 1, 81, 1, Q("1 mm")),
    Sketcher.Constraint("DistanceY", -1, 1, 84, 2, Q("1 mm")),
    Sketcher.Constraint("DistanceY", -1, 1, 85, 1, Q("1 mm")),
    Sketcher.Constraint("DistanceX", -1, 1, 85, 3, Q("0.7854 mm")),
    Sketcher.Constraint("DistanceX", -1, 1, 4, 2, Q("32.38 mm")),
    Sketcher.Constraint("DistanceX", -1, 1, 22, 2, Q("25.33 mm")),
    Sketcher.Constraint("DistanceX", -1, 1, 69, 1, Q("6.89 mm")),
    Sketcher.Constraint("DistanceX", 3, 2, 3, 1, Q("0.1974 mm")),
    Sketcher.Constraint("DistanceX", 7, 2, 7, 1, Q("0.3948 mm")),
    Sketcher.Constraint("DistanceX", 11, 2, 11, 1, Q("0.3948 mm")),
    Sketcher.Constraint("DistanceX", 15, 2, 15, 1, Q("0.3948 mm")),
    Sketcher.Constraint("DistanceX", 19, 2, 19, 1, Q("0.3948 mm")),
    Sketcher.Constraint("DistanceX", 23, 2, 23, 1, Q("0.3948 mm")),
    Sketcher.Constraint("DistanceX", 27, 2, 27, 1, Q("0.3948 mm")),
    Sketcher.Constraint("DistanceX", 31, 2, 31, 1, Q("0.3947 mm")),
    Sketcher.Constraint("DistanceX", 35, 2, 35, 1, Q("0.3947 mm")),
    Sketcher.Constraint("DistanceX", 39, 2, 39, 1, Q("0.3948 mm")),
    Sketcher.Constraint("DistanceX", 43, 2, 43, 1, Q("0.3948 mm")),
    Sketcher.Constraint("DistanceX", 47, 2, 47, 1, Q("0.3948 mm")),
    Sketcher.Constraint("DistanceX", 51, 2, 51, 1, Q("0.3948 mm")),
    Sketcher.Constraint("DistanceX", 55, 2, 55, 1, Q("0.3948 mm")),
    Sketcher.Constraint("DistanceX", 59, 2, 59, 1, Q("0.3948 mm")),
    Sketcher.Constraint("DistanceX", 63, 2, 63, 1, Q("0.3948 mm")),
    Sketcher.Constraint("DistanceX", 67, 2, 67, 1, Q("0.3948 mm")),
    Sketcher.Constraint("DistanceX", 71, 2, 71, 1, Q("0.3948 mm")),
    Sketcher.Constraint("DistanceX", 75, 2, 75, 1, Q("0.3948 mm")),
    Sketcher.Constraint("DistanceX", 79, 2, 79, 1, Q("0.3948 mm")),
    Sketcher.Constraint("DistanceX", 83, 2, 83, 1, Q("0.3948 mm")),
    Sketcher.Constraint("DistanceX", 87, 2, 87, 1, Q("0.1974 mm")),
    Sketcher.Constraint("DistanceY", -1, 1, 5, 3, Q("1.065 mm")),
    Sketcher.Constraint("DistanceY", -1, 1, 9, 3, Q("1.065 mm")),
    Sketcher.Constraint("DistanceY", -1, 1, 13, 3, Q("1.065 mm")),
    Sketcher.Constraint("DistanceX", -1, 1, 17, 3, Q("27.489 mm")),
    Sketcher.Constraint("DistanceY", -1, 1, 17, 3, Q("1.065 mm")),
    Sketcher.Constraint("DistanceX", -1, 1, 21, 3, Q("25.918 mm")),
    Sketcher.Constraint("DistanceY", -1, 1, 21, 3, Q("1.065 mm")),
    Sketcher.Constraint("DistanceY", -1, 1, 25, 3, Q("1.065 mm")),
    Sketcher.Constraint("DistanceY", -1, 1, 29, 3, Q("1.065 mm")),
    Sketcher.Constraint("DistanceY", -1, 1, 33, 3, Q("1.065 mm")),
    Sketcher.Constraint("DistanceX", -1, 1, 37, 3, Q("19.635 mm")),
    Sketcher.Constraint("DistanceY", -1, 1, 37, 3, Q("1.065 mm")),
    Sketcher.Constraint("DistanceY", -1, 1, 41, 3, Q("1.065 mm")),
    Sketcher.Constraint("DistanceY", -1, 1, 45, 3, Q("1.065 mm")),
    Sketcher.Constraint("DistanceY", -1, 1, 49, 3, Q("1.065 mm")),
    Sketcher.Constraint("DistanceY", -1, 1, 53, 3, Q("1.065 mm")),
    Sketcher.Constraint("DistanceX", -1, 1, 57, 3, Q("11.781 mm")),
    Sketcher.Constraint("DistanceY", -1, 1, 57, 3, Q("1.065 mm")),
    Sketcher.Constraint("DistanceY", -1, 1, 61, 3, Q("1.065 mm")),
    Sketcher.Constraint("DistanceY", -1, 1, 65, 3, Q("1.065 mm")),
    Sketcher.Constraint("DistanceY", -1, 1, 69, 3, Q("1.065 mm")),
    Sketcher.Constraint("DistanceY", -1, 1, 73, 3, Q("1.065 mm")),
    Sketcher.Constraint("DistanceX", -1, 1, 77, 3, Q("3.927 mm")),
    Sketcher.Constraint("DistanceY", -1, 1, 77, 3, Q("1.065 mm")),
    Sketcher.Constraint("DistanceY", -1, 1, 81, 3, Q("1.065 mm")),
    Sketcher.Constraint("DistanceY", -1, 1, 85, 3, Q("1.065 mm")),
    Sketcher.Constraint("DistanceX", -1, 1, 8, 2, Q("30.809 mm")),
    Sketcher.Constraint("DistanceX", -1, 1, 15, 2, Q("28.077 mm")),
    Sketcher.Constraint("DistanceX", -1, 1, 18, 2, Q("26.901 mm")),
    Sketcher.Constraint("DistanceX", -1, 1, 24, 2, Q("24.526 mm")),
    Sketcher.Constraint("DistanceX", -1, 1, 28, 2, Q("22.955 mm")),
    Sketcher.Constraint("DistanceX", -1, 1, 35, 2, Q("20.223 mm")),
    Sketcher.Constraint("DistanceX", -1, 1, 38, 2, Q("19.047 mm")),
    Sketcher.Constraint("DistanceX", -1, 1, 44, 2, Q("16.672 mm")),
    Sketcher.Constraint("DistanceX", -1, 1, 48, 2, Q("15.101 mm")),
    Sketcher.Constraint("DistanceX", -1, 1, 55, 2, Q("12.369 mm")),
    Sketcher.Constraint("DistanceX", -1, 1, 58, 2, Q("11.193 mm")),
    Sketcher.Constraint("DistanceX", -1, 1, 64, 2, Q("8.818 mm")),
    Sketcher.Constraint("DistanceX", -1, 1, 75, 2, Q("4.515 mm")),
    Sketcher.Constraint("DistanceX", -1, 1, 78, 2, Q("3.339 mm")),
    Sketcher.Constraint("Distance", 6, Q("1.1972 mm")),
    Sketcher.Constraint("Distance", 10, Q("1.1972 mm")),
    Sketcher.Constraint("Distance", 12, Q("1.1972 mm")),
    Sketcher.Constraint("Distance", 26, Q("1.1972 mm")),
    Sketcher.Constraint("Distance", 30, Q("1.1972 mm")),
    Sketcher.Constraint("Distance", 32, Q("1.1972 mm")),
    Sketcher.Constraint("Distance", 40, Q("1.1972 mm")),
    Sketcher.Constraint("Distance", 42, Q("1.1972 mm")),
    Sketcher.Constraint("Distance", 46, Q("1.1972 mm")),
    Sketcher.Constraint("Distance", 50, Q("1.1972 mm")),
    Sketcher.Constraint("Distance", 52, Q("1.1972 mm")),
    Sketcher.Constraint("Distance", 60, Q("1.1972 mm")),
    Sketcher.Constraint("Distance", 62, Q("1.1972 mm")),
    Sketcher.Constraint("Distance", 66, Q("1.1972 mm")),
    Sketcher.Constraint("Distance", 70, Q("1.1972 mm")),
    Sketcher.Constraint("Distance", 72, Q("1.1972 mm")),
    Sketcher.Constraint("Distance", 80, Q("1.1972 mm")),
    Sketcher.Constraint("Distance", 82, Q("1.1972 mm")),
])
pad1 = body.newObject("PartDesign::Pad", "Pad")
pad1.Profile = sketch1
pad1.Length = 1

doc.recompute()
